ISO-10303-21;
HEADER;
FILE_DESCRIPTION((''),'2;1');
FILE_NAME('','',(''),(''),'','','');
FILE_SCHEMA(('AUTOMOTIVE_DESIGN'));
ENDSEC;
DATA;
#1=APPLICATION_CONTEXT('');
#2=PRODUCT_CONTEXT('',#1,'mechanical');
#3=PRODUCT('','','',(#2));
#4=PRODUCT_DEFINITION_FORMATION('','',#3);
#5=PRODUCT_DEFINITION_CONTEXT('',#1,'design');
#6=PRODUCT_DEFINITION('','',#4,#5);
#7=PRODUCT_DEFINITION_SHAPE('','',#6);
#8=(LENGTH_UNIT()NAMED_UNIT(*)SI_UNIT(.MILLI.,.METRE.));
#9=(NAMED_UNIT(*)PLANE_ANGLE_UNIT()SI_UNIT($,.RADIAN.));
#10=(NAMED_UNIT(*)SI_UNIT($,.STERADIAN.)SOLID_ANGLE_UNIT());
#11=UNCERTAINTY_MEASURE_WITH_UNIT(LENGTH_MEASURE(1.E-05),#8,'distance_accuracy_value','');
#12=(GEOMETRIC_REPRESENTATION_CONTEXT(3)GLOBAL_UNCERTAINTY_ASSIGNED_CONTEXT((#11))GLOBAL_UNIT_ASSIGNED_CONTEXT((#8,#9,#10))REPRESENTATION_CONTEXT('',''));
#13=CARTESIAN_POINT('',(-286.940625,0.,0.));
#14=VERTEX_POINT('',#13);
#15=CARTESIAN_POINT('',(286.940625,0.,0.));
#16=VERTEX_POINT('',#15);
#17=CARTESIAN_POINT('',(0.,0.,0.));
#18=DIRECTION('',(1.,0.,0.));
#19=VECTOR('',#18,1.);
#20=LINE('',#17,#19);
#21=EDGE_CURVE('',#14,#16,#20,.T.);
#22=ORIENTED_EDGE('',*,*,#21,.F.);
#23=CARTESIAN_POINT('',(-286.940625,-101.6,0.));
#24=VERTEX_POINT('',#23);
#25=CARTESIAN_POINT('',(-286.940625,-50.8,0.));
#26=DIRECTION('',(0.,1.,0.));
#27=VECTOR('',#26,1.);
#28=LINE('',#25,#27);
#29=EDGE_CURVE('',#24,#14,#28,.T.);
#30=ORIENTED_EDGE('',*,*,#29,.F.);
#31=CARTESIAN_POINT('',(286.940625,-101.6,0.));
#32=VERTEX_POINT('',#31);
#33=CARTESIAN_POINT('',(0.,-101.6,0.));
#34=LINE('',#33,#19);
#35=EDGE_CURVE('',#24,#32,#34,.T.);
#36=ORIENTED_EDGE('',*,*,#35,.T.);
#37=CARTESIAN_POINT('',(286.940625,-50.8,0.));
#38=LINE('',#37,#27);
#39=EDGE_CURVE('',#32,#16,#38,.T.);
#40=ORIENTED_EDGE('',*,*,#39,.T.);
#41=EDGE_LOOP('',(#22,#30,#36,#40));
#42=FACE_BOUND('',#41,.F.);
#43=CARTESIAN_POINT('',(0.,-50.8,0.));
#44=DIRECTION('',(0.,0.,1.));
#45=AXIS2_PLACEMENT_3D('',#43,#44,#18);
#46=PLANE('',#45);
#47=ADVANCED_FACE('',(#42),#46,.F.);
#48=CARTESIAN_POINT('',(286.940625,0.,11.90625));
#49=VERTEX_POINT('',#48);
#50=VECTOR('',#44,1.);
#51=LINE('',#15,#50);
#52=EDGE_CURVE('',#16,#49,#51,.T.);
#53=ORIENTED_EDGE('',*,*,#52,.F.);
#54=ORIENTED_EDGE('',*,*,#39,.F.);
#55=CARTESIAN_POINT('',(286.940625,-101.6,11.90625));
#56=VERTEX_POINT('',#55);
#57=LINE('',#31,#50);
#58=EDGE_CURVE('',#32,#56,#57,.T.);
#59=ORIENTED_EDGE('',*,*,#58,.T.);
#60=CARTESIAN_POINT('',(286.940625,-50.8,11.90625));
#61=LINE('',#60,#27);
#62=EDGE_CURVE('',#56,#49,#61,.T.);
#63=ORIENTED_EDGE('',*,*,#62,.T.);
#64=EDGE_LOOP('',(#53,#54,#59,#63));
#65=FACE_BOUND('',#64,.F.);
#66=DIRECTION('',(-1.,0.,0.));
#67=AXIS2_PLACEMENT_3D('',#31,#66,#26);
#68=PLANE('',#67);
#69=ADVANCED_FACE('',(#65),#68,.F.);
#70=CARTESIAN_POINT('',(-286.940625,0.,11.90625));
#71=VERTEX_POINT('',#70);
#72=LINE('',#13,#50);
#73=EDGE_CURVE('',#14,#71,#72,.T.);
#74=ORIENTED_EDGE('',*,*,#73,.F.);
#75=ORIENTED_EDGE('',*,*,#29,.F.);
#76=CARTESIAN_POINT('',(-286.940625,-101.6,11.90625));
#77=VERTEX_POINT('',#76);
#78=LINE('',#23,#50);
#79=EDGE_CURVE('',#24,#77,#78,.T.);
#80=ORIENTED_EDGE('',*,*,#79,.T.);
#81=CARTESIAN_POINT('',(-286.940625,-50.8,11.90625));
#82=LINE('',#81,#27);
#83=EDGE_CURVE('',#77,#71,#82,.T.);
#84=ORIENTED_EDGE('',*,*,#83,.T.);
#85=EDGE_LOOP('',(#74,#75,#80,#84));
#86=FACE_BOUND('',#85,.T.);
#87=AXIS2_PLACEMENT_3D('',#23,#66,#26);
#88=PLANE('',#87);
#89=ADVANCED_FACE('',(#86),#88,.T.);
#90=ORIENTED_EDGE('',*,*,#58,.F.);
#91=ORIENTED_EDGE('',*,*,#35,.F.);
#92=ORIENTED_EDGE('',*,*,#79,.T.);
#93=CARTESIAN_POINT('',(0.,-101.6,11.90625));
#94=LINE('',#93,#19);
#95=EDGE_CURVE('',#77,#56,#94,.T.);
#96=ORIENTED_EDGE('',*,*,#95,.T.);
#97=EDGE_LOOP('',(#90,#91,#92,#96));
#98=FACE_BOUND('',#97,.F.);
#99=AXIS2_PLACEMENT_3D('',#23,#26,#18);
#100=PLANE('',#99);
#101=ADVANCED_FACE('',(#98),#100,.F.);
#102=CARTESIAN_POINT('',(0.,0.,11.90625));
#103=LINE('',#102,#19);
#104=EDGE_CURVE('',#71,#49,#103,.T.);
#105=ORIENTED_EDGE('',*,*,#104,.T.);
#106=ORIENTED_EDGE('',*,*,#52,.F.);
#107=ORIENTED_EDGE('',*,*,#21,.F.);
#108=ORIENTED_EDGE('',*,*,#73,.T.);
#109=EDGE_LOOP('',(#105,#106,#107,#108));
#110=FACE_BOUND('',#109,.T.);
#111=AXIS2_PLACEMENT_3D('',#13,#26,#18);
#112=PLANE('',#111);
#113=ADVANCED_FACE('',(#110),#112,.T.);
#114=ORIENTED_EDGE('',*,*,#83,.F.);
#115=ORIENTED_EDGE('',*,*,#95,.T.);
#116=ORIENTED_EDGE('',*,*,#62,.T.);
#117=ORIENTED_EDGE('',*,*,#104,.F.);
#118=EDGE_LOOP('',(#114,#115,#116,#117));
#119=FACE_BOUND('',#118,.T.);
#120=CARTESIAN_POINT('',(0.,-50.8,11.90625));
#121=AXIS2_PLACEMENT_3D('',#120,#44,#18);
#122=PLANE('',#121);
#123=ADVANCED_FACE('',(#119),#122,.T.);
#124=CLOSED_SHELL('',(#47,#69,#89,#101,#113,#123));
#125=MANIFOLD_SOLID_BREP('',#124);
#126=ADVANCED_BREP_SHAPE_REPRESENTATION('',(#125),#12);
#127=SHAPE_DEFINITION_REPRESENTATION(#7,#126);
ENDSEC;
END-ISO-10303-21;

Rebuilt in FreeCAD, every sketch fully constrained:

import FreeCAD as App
import Part
import Sketcher

V = App.Vector
Q = App.Units.Quantity

doc = App.newDocument("Part")
params = doc.addObject("Spreadsheet::Sheet", "Params")
for row, (alias, value) in enumerate([
    ("sketch1_height", "4 in"),
    ("sketch1_width", "22.59375 in"),
    ("pad1_length", "0.46875 in"),
], start=1):
    params.set(f"A{row}", alias)
    params.set(f"B{row}", "=" + value)
    params.setAlias(f"B{row}", alias)

body = doc.addObject("PartDesign::Body", "Body")

sketch1 = doc.addObject("Sketcher::SketchObject", "Sketch")
body.addObject(sketch1)
sketch1.AttachmentSupport = (doc.XY_Plane, [""])
sketch1.MapMode = "FlatFace"
sketch1.addGeometry([
    Part.LineSegment(V(-286.940625, 0, 0), V(-286.940625, -101.6, 0)),
    Part.LineSegment(V(-286.940625, -101.6, 0), V(286.940625, -101.6, 0)),
    Part.LineSegment(V(286.940625, -101.6, 0), V(286.940625, 0, 0)),
    Part.LineSegment(V(286.940625, 0, 0), V(-286.940625, 0, 0)),
], False)
sketch1.addConstraint([
    Sketcher.Constraint("Coincident", 0, 2, 1, 1),
    Sketcher.Constraint("Coincident", 1, 2, 2, 1),
    Sketcher.Constraint("Coincident", 2, 2, 3, 1),
    Sketcher.Constraint("Coincident", 3, 2, 0, 1),
    Sketcher.Constraint("Vertical", 0),
    Sketcher.Constraint("Horizontal", 1),
    Sketcher.Constraint("Vertical", 2),
    Sketcher.Constraint("Horizontal", 3),
    Sketcher.Constraint("Symmetric", 2, 2, 3, 2, -1, 1),
    Sketcher.Constraint("DistanceY", 0, 2, 0, 1, Q("4 in")),
    Sketcher.Constraint("DistanceX", 1, 1, 1, 2, Q("22.59375 in")),
])
sketch1.setExpression("Constraints[9]", "Params.sketch1_height")
sketch1.setExpression("Constraints[10]", "Params.sketch1_width")
pad1 = doc.addObject("PartDesign::Pad", "Pad")
body.addObject(pad1)
pad1.Profile = sketch1
pad1.setExpression("Length", "Params.pad1_length")

doc.recompute()
